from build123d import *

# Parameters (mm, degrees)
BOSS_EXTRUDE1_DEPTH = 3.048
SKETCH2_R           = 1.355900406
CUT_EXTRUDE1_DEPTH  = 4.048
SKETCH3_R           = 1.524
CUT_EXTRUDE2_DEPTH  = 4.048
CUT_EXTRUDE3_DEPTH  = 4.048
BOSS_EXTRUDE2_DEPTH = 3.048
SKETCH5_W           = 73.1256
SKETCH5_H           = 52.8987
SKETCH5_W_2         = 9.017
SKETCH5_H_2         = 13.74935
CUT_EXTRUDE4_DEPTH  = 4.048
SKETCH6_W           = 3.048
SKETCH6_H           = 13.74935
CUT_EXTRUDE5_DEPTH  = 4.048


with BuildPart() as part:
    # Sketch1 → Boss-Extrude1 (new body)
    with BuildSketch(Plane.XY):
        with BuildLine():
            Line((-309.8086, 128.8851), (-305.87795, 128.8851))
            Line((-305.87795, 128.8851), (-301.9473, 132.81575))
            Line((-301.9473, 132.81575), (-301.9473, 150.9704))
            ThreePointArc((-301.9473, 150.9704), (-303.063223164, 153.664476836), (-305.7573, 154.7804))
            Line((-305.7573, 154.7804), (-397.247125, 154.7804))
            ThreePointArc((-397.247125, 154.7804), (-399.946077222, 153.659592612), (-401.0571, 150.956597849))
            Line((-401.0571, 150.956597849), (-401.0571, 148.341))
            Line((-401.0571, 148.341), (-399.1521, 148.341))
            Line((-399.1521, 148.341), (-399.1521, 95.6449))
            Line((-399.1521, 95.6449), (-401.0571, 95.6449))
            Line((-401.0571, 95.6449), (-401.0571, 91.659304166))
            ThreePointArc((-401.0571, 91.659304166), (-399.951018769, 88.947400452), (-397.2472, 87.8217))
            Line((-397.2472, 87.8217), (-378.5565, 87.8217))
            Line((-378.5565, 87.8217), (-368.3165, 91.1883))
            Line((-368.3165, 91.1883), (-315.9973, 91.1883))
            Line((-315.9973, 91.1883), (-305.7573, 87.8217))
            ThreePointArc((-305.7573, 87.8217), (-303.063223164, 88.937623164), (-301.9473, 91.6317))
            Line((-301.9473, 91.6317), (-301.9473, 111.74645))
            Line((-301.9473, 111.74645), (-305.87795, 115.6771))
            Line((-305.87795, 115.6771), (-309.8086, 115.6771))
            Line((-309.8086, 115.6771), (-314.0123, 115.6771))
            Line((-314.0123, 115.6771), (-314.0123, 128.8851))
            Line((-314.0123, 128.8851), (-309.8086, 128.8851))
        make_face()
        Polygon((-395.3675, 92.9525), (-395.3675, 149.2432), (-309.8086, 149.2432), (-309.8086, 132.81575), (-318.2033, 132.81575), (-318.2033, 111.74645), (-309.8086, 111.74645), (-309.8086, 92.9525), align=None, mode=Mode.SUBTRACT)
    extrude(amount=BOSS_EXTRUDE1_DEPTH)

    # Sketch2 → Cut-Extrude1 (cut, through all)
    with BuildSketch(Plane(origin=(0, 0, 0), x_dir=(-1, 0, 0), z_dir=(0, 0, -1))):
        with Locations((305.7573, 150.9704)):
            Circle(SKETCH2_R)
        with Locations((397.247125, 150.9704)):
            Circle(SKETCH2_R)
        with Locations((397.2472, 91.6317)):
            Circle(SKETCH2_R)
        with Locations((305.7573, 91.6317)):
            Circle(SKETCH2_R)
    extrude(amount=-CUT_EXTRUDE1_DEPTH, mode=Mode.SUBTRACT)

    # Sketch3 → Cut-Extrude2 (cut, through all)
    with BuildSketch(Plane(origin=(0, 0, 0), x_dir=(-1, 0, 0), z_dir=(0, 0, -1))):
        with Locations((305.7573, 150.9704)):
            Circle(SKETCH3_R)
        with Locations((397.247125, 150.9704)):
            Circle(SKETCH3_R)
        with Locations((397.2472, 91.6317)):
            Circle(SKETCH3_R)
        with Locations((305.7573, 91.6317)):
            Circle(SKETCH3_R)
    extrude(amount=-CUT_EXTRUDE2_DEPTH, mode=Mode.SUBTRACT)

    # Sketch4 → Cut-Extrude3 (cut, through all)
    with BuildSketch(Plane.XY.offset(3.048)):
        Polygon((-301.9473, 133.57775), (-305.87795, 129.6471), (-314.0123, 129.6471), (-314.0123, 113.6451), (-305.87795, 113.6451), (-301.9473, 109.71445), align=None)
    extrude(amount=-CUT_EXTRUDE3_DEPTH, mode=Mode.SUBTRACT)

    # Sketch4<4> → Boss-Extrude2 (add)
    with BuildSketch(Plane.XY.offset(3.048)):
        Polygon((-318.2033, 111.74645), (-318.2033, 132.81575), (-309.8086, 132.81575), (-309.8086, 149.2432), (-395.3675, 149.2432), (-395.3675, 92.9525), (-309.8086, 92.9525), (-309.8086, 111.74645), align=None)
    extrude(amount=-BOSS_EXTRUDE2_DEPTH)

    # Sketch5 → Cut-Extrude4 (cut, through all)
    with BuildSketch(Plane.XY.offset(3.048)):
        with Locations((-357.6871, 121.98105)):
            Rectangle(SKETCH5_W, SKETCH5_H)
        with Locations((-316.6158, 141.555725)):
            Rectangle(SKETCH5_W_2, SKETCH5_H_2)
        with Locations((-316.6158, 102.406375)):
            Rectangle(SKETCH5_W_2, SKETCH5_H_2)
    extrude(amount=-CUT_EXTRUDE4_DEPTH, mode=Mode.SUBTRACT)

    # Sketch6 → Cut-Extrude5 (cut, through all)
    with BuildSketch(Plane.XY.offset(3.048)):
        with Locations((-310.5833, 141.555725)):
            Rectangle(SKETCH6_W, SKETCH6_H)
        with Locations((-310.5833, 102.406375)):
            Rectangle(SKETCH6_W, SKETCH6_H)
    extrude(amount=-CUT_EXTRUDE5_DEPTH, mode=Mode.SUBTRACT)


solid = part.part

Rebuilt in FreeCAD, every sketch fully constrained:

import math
import FreeCAD as App
import Part
import Sketcher
Q = App.Units.Quantity


def add_polygon(sketch, points):
    """Adds a closed chain of lines whose ends are joined by coincident constraints."""
    first, n = sketch.GeometryCount, len(points)
    for a, b in zip(points, points[1:] + points[:1]):
        sketch.addGeometry(Part.LineSegment(App.Vector(*a, 0), App.Vector(*b, 0)), False)
    for i in range(n):
        sketch.addConstraint(Sketcher.Constraint("Coincident", first + i, 2, first + (i + 1) % n, 1))

doc = App.newDocument("Part")
body = doc.addObject("PartDesign::Body", "Body")

# Sketch on XY plane
sketch1 = body.newObject("Sketcher::SketchObject", "Sketch")
sketch1.AttachmentSupport = (doc.getObject("XY_Plane"), [""])
sketch1.MapMode = "FlatFace"
sketch1.addGeometry(Part.LineSegment(App.Vector(-305.87795, 128.8851, 0), App.Vector(-301.9473, 132.81575, 0)), False)  # 0
sketch1.addGeometry(Part.LineSegment(App.Vector(-301.9473, 132.81575, 0), App.Vector(-301.9473, 150.9704, 0)), False)  # 1
sketch1.addGeometry(Part.ArcOfCircle(Part.Circle(App.Vector(-305.7573, 150.9704, 0), App.Vector(0, 0, 1), 3.81), math.radians(0), math.radians(90)), False)  # 2
sketch1.addGeometry(Part.LineSegment(App.Vector(-305.7573, 154.7804, 0), App.Vector(-397.247125, 154.7804, 0)), False)  # 3
sketch1.addGeometry(Part.ArcOfCircle(Part.Circle(App.Vector(-397.247125, 150.9704, 0), App.Vector(0, 0, 1), 3.81), math.radians(90), math.radians(180.207561)), False)  # 4
sketch1.addGeometry(Part.LineSegment(App.Vector(-401.0571, 150.956598, 0), App.Vector(-401.0571, 148.341, 0)), False)  # 5
sketch1.addGeometry(Part.LineSegment(App.Vector(-401.0571, 148.341, 0), App.Vector(-399.1521, 148.341, 0)), False)  # 6
sketch1.addGeometry(Part.LineSegment(App.Vector(-399.1521, 148.341, 0), App.Vector(-399.1521, 95.6449, 0)), False)  # 7
sketch1.addGeometry(Part.LineSegment(App.Vector(-399.1521, 95.6449, 0), App.Vector(-401.0571, 95.6449, 0)), False)  # 8
sketch1.addGeometry(Part.LineSegment(App.Vector(-401.0571, 95.6449, 0), App.Vector(-401.0571, 91.659304, 0)), False)  # 9
sketch1.addGeometry(Part.ArcOfCircle(Part.Circle(App.Vector(-397.2472, 91.6317, 0), App.Vector(0, 0, 1), 3.81), math.radians(179.584878), math.radians(270)), False)  # 10
sketch1.addGeometry(Part.LineSegment(App.Vector(-397.2472, 87.8217, 0), App.Vector(-378.5565, 87.8217, 0)), False)  # 11
sketch1.addGeometry(Part.LineSegment(App.Vector(-378.5565, 87.8217, 0), App.Vector(-368.3165, 91.1883, 0)), False)  # 12
sketch1.addGeometry(Part.LineSegment(App.Vector(-368.3165, 91.1883, 0), App.Vector(-315.9973, 91.1883, 0)), False)  # 13
sketch1.addGeometry(Part.LineSegment(App.Vector(-315.9973, 91.1883, 0), App.Vector(-305.7573, 87.8217, 0)), False)  # 14
sketch1.addGeometry(Part.ArcOfCircle(Part.Circle(App.Vector(-305.7573, 91.6317, 0), App.Vector(0, 0, 1), 3.81), math.radians(-90), math.radians(0)), False)  # 15
sketch1.addGeometry(Part.LineSegment(App.Vector(-301.9473, 91.6317, 0), App.Vector(-301.9473, 111.74645, 0)), False)  # 16
sketch1.addGeometry(Part.LineSegment(App.Vector(-301.9473, 111.74645, 0), App.Vector(-305.87795, 115.6771, 0)), False)  # 17
sketch1.addGeometry(Part.LineSegment(App.Vector(-305.87795, 115.6771, 0), App.Vector(-314.0123, 115.6771, 0)), False)  # 18
sketch1.addGeometry(Part.LineSegment(App.Vector(-314.0123, 115.6771, 0), App.Vector(-314.0123, 128.8851, 0)), False)  # 19
sketch1.addGeometry(Part.LineSegment(App.Vector(-314.0123, 128.8851, 0), App.Vector(-305.87795, 128.8851, 0)), False)  # 20
add_polygon(sketch1, [(-309.8086, 92.9525), (-395.3675, 92.9525), (-395.3675, 149.2432), (-309.8086, 149.2432), (-309.8086, 132.81575), (-318.2033, 132.81575), (-318.2033, 111.74645), (-309.8086, 111.74645)])  # lines 21-28
sketch1.addConstraint(Sketcher.Constraint("Coincident", 0, 2, 1, 1))
sketch1.addConstraint(Sketcher.Constraint("Tangent", 1, 2, 2, 1))
sketch1.addConstraint(Sketcher.Constraint("Tangent", 2, 2, 3, 1))
sketch1.addConstraint(Sketcher.Constraint("Tangent", 3, 2, 4, 1))
sketch1.addConstraint(Sketcher.Constraint("Coincident", 4, 2, 5, 1))
sketch1.addConstraint(Sketcher.Constraint("Coincident", 5, 2, 6, 1))
sketch1.addConstraint(Sketcher.Constraint("Coincident", 6, 2, 7, 1))
sketch1.addConstraint(Sketcher.Constraint("Coincident", 7, 2, 8, 1))
sketch1.addConstraint(Sketcher.Constraint("Coincident", 8, 2, 9, 1))
sketch1.addConstraint(Sketcher.Constraint("Coincident", 9, 2, 10, 1))
sketch1.addConstraint(Sketcher.Constraint("Tangent", 10, 2, 11, 1))
sketch1.addConstraint(Sketcher.Constraint("Coincident", 11, 2, 12, 1))
sketch1.addConstraint(Sketcher.Constraint("Coincident", 12, 2, 13, 1))
sketch1.addConstraint(Sketcher.Constraint("Coincident", 13, 2, 14, 1))
sketch1.addConstraint(Sketcher.Constraint("Coincident", 14, 2, 15, 1))
sketch1.addConstraint(Sketcher.Constraint("Tangent", 15, 2, 16, 1))
sketch1.addConstraint(Sketcher.Constraint("Coincident", 16, 2, 17, 1))
sketch1.addConstraint(Sketcher.Constraint("Coincident", 17, 2, 18, 1))
sketch1.addConstraint(Sketcher.Constraint("Coincident", 18, 2, 19, 1))
sketch1.addConstraint(Sketcher.Constraint("Coincident", 19, 2, 20, 1))
sketch1.addConstraint(Sketcher.Constraint("Coincident", 20, 2, 0, 1))
sketch1.addConstraint(Sketcher.Constraint("Vertical", 1))
sketch1.addConstraint(Sketcher.Constraint("Horizontal", 3))
sketch1.addConstraint(Sketcher.Constraint("Vertical", 5))
sketch1.addConstraint(Sketcher.Constraint("Horizontal", 6))
sketch1.addConstraint(Sketcher.Constraint("Vertical", 7))
sketch1.addConstraint(Sketcher.Constraint("Horizontal", 8))
sketch1.addConstraint(Sketcher.Constraint("Vertical", 9))
sketch1.addConstraint(Sketcher.Constraint("Horizontal", 11))
sketch1.addConstraint(Sketcher.Constraint("Horizontal", 13))
sketch1.addConstraint(Sketcher.Constraint("Vertical", 16))
sketch1.addConstraint(Sketcher.Constraint("Horizontal", 18))
sketch1.addConstraint(Sketcher.Constraint("Vertical", 19))
sketch1.addConstraint(Sketcher.Constraint("Horizontal", 20))
sketch1.addConstraint(Sketcher.Constraint("Horizontal", 21))
sketch1.addConstraint(Sketcher.Constraint("Vertical", 22))
sketch1.addConstraint(Sketcher.Constraint("Horizontal", 23))
sketch1.addConstraint(Sketcher.Constraint("Vertical", 24))
sketch1.addConstraint(Sketcher.Constraint("Horizontal", 25))
sketch1.addConstraint(Sketcher.Constraint("Vertical", 26))
sketch1.addConstraint(Sketcher.Constraint("Horizontal", 27))
sketch1.addConstraint(Sketcher.Constraint("Vertical", 28))
sketch1.addConstraint(Sketcher.Constraint("Equal", 2, 4))
sketch1.addConstraint(Sketcher.Constraint("Equal", 4, 10))
sketch1.addConstraint(Sketcher.Constraint("Equal", 10, 15))
sketch1.addConstraint(Sketcher.Constraint("Perpendicular", 0, 17))
sketch1.addConstraint(Sketcher.Constraint("Horizontal", 10, 3, 15, 3))
sketch1.addConstraint(Sketcher.Constraint("Horizontal", 0, 2, 24, 2))
sketch1.addConstraint(Sketcher.Constraint("Horizontal", 16, 2, 26, 2))
sketch1.addConstraint(Sketcher.Constraint("Vertical", 2, 3, 15, 3))
sketch1.addConstraint(Sketcher.Constraint("Vertical", 5, 2, 8, 2))
sketch1.addConstraint(Sketcher.Constraint("Vertical", 2, 2, 14, 2))
sketch1.addConstraint(Sketcher.Constraint("Vertical", 17, 2, 20, 2))
sketch1.addConstraint(Sketcher.Constraint("Vertical", 24, 2, 27, 2))
sketch1.addConstraint(Sketcher.Constraint("Equal", 12, 14))
sketch1.addConstraint(Sketcher.Constraint("Equal", 0, 17))
sketch1.addConstraint(Sketcher.Constraint("Radius", 2, Q("0.15 in")))
sketch1.addConstraint(Sketcher.Constraint("DistanceY", 19, 1, 19, 2, Q("0.52 in")))
sketch1.addConstraint(Sketcher.Constraint("DistanceX", 6, 1, 6, 2, Q("0.075 in")))
sketch1.addConstraint(Sketcher.Constraint("DistanceX", 25, 2, 0, 2, Q("0.64 in")))
sketch1.addConstraint(Sketcher.Constraint("DistanceX", 25, 2, 25, 1, Q("0.3305 in")))
sketch1.addConstraint(Sketcher.Constraint("DistanceY", 26, 2, 26, 1, Q("0.8295 in")))
sketch1.addConstraint(Sketcher.Constraint("DistanceY", 10, 3, 7, 2, Q("0.158 in")))
sketch1.addConstraint(Sketcher.Constraint("DistanceX", 7, 2, 12, 2, Q("1.214 in")))
sketch1.addConstraint(Sketcher.Constraint("DistanceX", 18, 2, 16, 2, Q("0.475 in")))
sketch1.addConstraint(Sketcher.Constraint("DistanceY", 10, 3, 21, 2, Q("0.052 in")))
sketch1.addConstraint(Sketcher.Constraint("DistanceX", 7, 2, 21, 2, Q("0.149 in")))
sketch1.addConstraint(Sketcher.Constraint("DistanceY", 22, 2, 4, 3, Q("0.068 in")))
sketch1.addConstraint(Sketcher.Constraint("DistanceX", 11, 1, 11, 2, 18.6907))
sketch1.addConstraint(Sketcher.Constraint("DistanceX", 13, 1, 13, 2, 52.3192))
sketch1.addConstraint(Sketcher.Constraint("DistanceX", 21, 2, 21, 1, 85.5589))
sketch1.addConstraint(Sketcher.Constraint("DistanceY", 7, 2, 7, 1, 52.6961))
sketch1.addConstraint(Sketcher.Constraint("DistanceY", 22, 1, 22, 2, 56.2907))
sketch1.addConstraint(Sketcher.Constraint("DistanceY", 19, 2, 2, 3, Q("0.8695 in")))
sketch1.addConstraint(Sketcher.Constraint("DistanceX", 2, 3, -1, 1, 305.7573))
sketch1.addConstraint(Sketcher.Constraint("DistanceY", -1, 1, 2, 3, 150.9704))
sketch1.addConstraint(Sketcher.Constraint("DistanceY", -1, 1, 12, 2, 91.1883))
sketch1.addConstraint(Sketcher.Constraint("DistanceX", 3, 2, 3, 1, 91.489825))
pad1 = body.newObject("PartDesign::Pad", "Pad")
pad1.Profile = sketch1
pad1.Length = Q("0.12 in")

# Sketch on XY plane
sketch2 = body.newObject("Sketcher::SketchObject", "Sketch001")
sketch2.AttachmentSupport = (doc.getObject("XY_Plane"), [""])
sketch2.MapMode = "FlatFace"
sketch2.addGeometry(Part.Circle(App.Vector(-305.8, 151, 0), App.Vector(0, 0, 1), 1.4), False)
sketch2.addGeometry(Part.Circle(App.Vector(-397.2, 151, 0), App.Vector(0, 0, 1), 1.4), False)
sketch2.addGeometry(Part.Circle(App.Vector(-397.2, 91.6, 0), App.Vector(0, 0, 1), 1.4), False)
sketch2.addGeometry(Part.Circle(App.Vector(-305.8, 91.6, 0), App.Vector(0, 0, 1), 1.4), False)
sketch2.addConstraint(Sketcher.Constraint("Equal", 0, 1))
sketch2.addConstraint(Sketcher.Constraint("Equal", 1, 2))
sketch2.addConstraint(Sketcher.Constraint("Equal", 2, 3))
sketch2.addConstraint(Sketcher.Constraint("Horizontal", 0, 3, 1, 3))
sketch2.addConstraint(Sketcher.Constraint("Horizontal", 2, 3, 3, 3))
sketch2.addConstraint(Sketcher.Constraint("Vertical", 0, 3, 3, 3))
sketch2.addConstraint(Sketcher.Constraint("Diameter", 0, 2.711801))
sketch2.addConstraint(Sketcher.Constraint("DistanceX", 0, 3, -1, 1, 305.7573))
sketch2.addConstraint(Sketcher.Constraint("DistanceY", -1, 1, 0, 3, 150.9704))
sketch2.addConstraint(Sketcher.Constraint("DistanceX", 2, 3, -1, 1, 397.2472))
sketch2.addConstraint(Sketcher.Constraint("DistanceY", -1, 1, 2, 3, 91.6317))
sketch2.addConstraint(Sketcher.Constraint("DistanceX", 1, 3, -1, 1, 397.247125))
pocket1 = body.newObject("PartDesign::Pocket", "Pocket")
pocket1.Profile = sketch2
pocket1.Type = "ThroughAll"
pocket1.Reversed = True

# Sketch on XY plane
sketch3 = body.newObject("Sketcher::SketchObject", "Sketch002")
sketch3.AttachmentSupport = (doc.getObject("XY_Plane"), [""])
sketch3.MapMode = "FlatFace"
sketch3.addGeometry(Part.Circle(App.Vector(-305.8, 151, 0), App.Vector(0, 0, 1), 1.5), False)
sketch3.addGeometry(Part.Circle(App.Vector(-397.2, 151, 0), App.Vector(0, 0, 1), 1.5), False)
sketch3.addGeometry(Part.Circle(App.Vector(-397.2, 91.6, 0), App.Vector(0, 0, 1), 1.5), False)
sketch3.addGeometry(Part.Circle(App.Vector(-305.8, 91.6, 0), App.Vector(0, 0, 1), 1.5), False)
sketch3.addConstraint(Sketcher.Constraint("Equal", 0, 1))
sketch3.addConstraint(Sketcher.Constraint("Equal", 1, 2))
sketch3.addConstraint(Sketcher.Constraint("Equal", 2, 3))
sketch3.addConstraint(Sketcher.Constraint("Horizontal", 0, 3, 1, 3))
sketch3.addConstraint(Sketcher.Constraint("Horizontal", 2, 3, 3, 3))
sketch3.addConstraint(Sketcher.Constraint("Vertical", 0, 3, 3, 3))
sketch3.addConstraint(Sketcher.Constraint("Diameter", 0, Q("0.12 in")))
sketch3.addConstraint(Sketcher.Constraint("DistanceX", 0, 3, -1, 1, 305.7573))
sketch3.addConstraint(Sketcher.Constraint("DistanceY", -1, 1, 0, 3, 150.9704))
sketch3.addConstraint(Sketcher.Constraint("DistanceX", 2, 3, -1, 1, 397.2472))
sketch3.addConstraint(Sketcher.Constraint("DistanceY", -1, 1, 2, 3, 91.6317))
sketch3.addConstraint(Sketcher.Constraint("DistanceX", 1, 3, -1, 1, 397.247125))
pocket2 = body.newObject("PartDesign::Pocket", "Pocket001")
pocket2.Profile = sketch3
pocket2.Type = "ThroughAll"
pocket2.Reversed = True

# Sketch on XY plane
sketch4 = body.newObject("Sketcher::SketchObject", "Sketch003")
sketch4.AttachmentSupport = (doc.getObject("XY_Plane"), [""])
sketch4.MapMode = "FlatFace"
sketch4.AttachmentOffset = App.Placement(App.Vector(0, 0, 0.12 * 25.4), App.Rotation())
add_polygon(sketch4, [(-302, 134), (-306, 130), (-314, 130), (-314, 114), (-306, 114), (-302, 110)])  # lines 0-5
sketch4.addConstraint(Sketcher.Constraint("Horizontal", 1))
sketch4.addConstraint(Sketcher.Constraint("Vertical", 2))
sketch4.addConstraint(Sketcher.Constraint("Horizontal", 3))
sketch4.addConstraint(Sketcher.Constraint("Vertical", 5))
sketch4.addConstraint(Sketcher.Constraint("Perpendicular", 0, 4))
sketch4.addConstraint(Sketcher.Constraint("Vertical", 0, 2, 3, 2))
sketch4.addConstraint(Sketcher.Constraint("Equal", 0, 4))
sketch4.addConstraint(Sketcher.Constraint("DistanceY", 2, 2, 2, 1, Q("0.63 in")))
sketch4.addConstraint(Sketcher.Constraint("DistanceY", 5, 1, 5, 2, Q("0.9395 in")))
sketch4.addConstraint(Sketcher.Constraint("DistanceX", 2, 2, 4, 2, Q("0.475 in")))
sketch4.addConstraint(Sketcher.Constraint("DistanceY", -1, 1, 0, 2, 129.6471))
sketch4.addConstraint(Sketcher.Constraint("DistanceX", 1, 2, -1, 1, 314.0123))
pocket3 = body.newObject("PartDesign::Pocket", "Pocket002")
pocket3.Profile = sketch4
pocket3.Type = "ThroughAll"

# Sketch on XY plane
sketch5 = body.newObject("Sketcher::SketchObject", "Sketch004")
sketch5.AttachmentSupport = (doc.getObject("XY_Plane"), [""])
sketch5.MapMode = "FlatFace"
sketch5.AttachmentOffset = App.Placement(App.Vector(0, 0, 0.12 * 25.4), App.Rotation())
add_polygon(sketch5, [(-318, 112), (-318, 133), (-310, 133), (-310, 149), (-395, 149), (-395, 93), (-310, 93), (-310, 112)])  # lines 0-7
sketch5.addConstraint(Sketcher.Constraint("Vertical", 0))
sketch5.addConstraint(Sketcher.Constraint("Horizontal", 1))
sketch5.addConstraint(Sketcher.Constraint("Vertical", 2))
sketch5.addConstraint(Sketcher.Constraint("Horizontal", 3))
sketch5.addConstraint(Sketcher.Constraint("Vertical", 4))
sketch5.addConstraint(Sketcher.Constraint("Horizontal", 5))
sketch5.addConstraint(Sketcher.Constraint("Vertical", 6))
sketch5.addConstraint(Sketcher.Constraint("Horizontal", 7))
sketch5.addConstraint(Sketcher.Constraint("Vertical", 2, 2, 5, 2))
sketch5.addConstraint(Sketcher.Constraint("DistanceX", 1, 1, 1, 2, Q("0.3305 in")))
sketch5.addConstraint(Sketcher.Constraint("DistanceY", 0, 1, 0, 2, Q("0.8295 in")))
sketch5.addConstraint(Sketcher.Constraint("DistanceX", 3, 2, 3, 1, 85.5589))
sketch5.addConstraint(Sketcher.Constraint("DistanceY", 4, 2, 4, 1, 56.2907))
sketch5.addConstraint(Sketcher.Constraint("DistanceY", 2, 1, 2, 2, 16.42745))
sketch5.addConstraint(Sketcher.Constraint("DistanceX", 0, 2, -1, 1, 318.2033))
sketch5.addConstraint(Sketcher.Constraint("DistanceY", -1, 1, 2, 2, 149.2432))
pad2 = body.newObject("PartDesign::Pad", "Pad001")
pad2.Profile = sketch5
pad2.Length = Q("0.12 in")
pad2.Reversed = True

# Sketch on XY plane
sketch6 = body.newObject("Sketcher::SketchObject", "Sketch005")
sketch6.AttachmentSupport = (doc.getObject("XY_Plane"), [""])
sketch6.MapMode = "FlatFace"
sketch6.AttachmentOffset = App.Placement(App.Vector(0, 0, 0.12 * 25.4), App.Rotation())
add_polygon(sketch6, [(-394, 148), (-394, 96), (-312, 96), (-312, 109), (-321, 109), (-321, 135), (-312, 135), (-312, 148)])  # lines 0-7
sketch6.addConstraint(Sketcher.Constraint("Vertical", 0))
sketch6.addConstraint(Sketcher.Constraint("Horizontal", 1))
sketch6.addConstraint(Sketcher.Constraint("Vertical", 2))
sketch6.addConstraint(Sketcher.Constraint("Horizontal", 3))
sketch6.addConstraint(Sketcher.Constraint("Vertical", 4))
sketch6.addConstraint(Sketcher.Constraint("Horizontal", 5))
sketch6.addConstraint(Sketcher.Constraint("Vertical", 6))
sketch6.addConstraint(Sketcher.Constraint("Horizontal", 7))
sketch6.addConstraint(Sketcher.Constraint("Vertical", 2, 2, 5, 2))
sketch6.addConstraint(Sketcher.Constraint("Equal", 2, 6))
sketch6.addConstraint(Sketcher.Constraint("DistanceY", 4, 1, 4, 2, Q("1 in")))
sketch6.addConstraint(Sketcher.Constraint("DistanceX", 3, 2, 3, 1, Q("0.355 in")))
sketch6.addConstraint(Sketcher.Constraint("DistanceX", 1, 1, 1, 2, 82.1426))
sketch6.addConstraint(Sketcher.Constraint("DistanceY", 0, 2, 0, 1, 52.8987))
sketch6.addConstraint(Sketcher.Constraint("DistanceX", 0, 2, -1, 1, 394.2499))
sketch6.addConstraint(Sketcher.Constraint("DistanceY", -1, 1, 0, 2, 95.5317))
pocket4 = body.newObject("PartDesign::Pocket", "Pocket003")
pocket4.Profile = sketch6
pocket4.Type = "ThroughAll"

# Sketch on XY plane
sketch7 = body.newObject("Sketcher::SketchObject", "Sketch006")
sketch7.AttachmentSupport = (doc.getObject("XY_Plane"), [""])
sketch7.MapMode = "FlatFace"
sketch7.AttachmentOffset = App.Placement(App.Vector(0, 0, 0.12 * 25.4), App.Rotation())
add_polygon(sketch7, [(-312.1, 148.4), (-312.1, 134.7), (-309.1, 134.7), (-309.1, 148.4)])  # lines 0-3
add_polygon(sketch7, [(-312.1, 109.3), (-312.1, 95.5), (-309.1, 95.5), (-309.1, 109.3)])  # lines 4-7
sketch7.addConstraint(Sketcher.Constraint("Vertical", 0))
sketch7.addConstraint(Sketcher.Constraint("Horizontal", 1))
sketch7.addConstraint(Sketcher.Constraint("Vertical", 2))
sketch7.addConstraint(Sketcher.Constraint("Horizontal", 3))
sketch7.addConstraint(Sketcher.Constraint("Vertical", 4))
sketch7.addConstraint(Sketcher.Constraint("Horizontal", 5))
sketch7.addConstraint(Sketcher.Constraint("Vertical", 6))
sketch7.addConstraint(Sketcher.Constraint("Horizontal", 7))
sketch7.addConstraint(Sketcher.Constraint("Vertical", 3, 2, 4, 2))
sketch7.addConstraint(Sketcher.Constraint("Vertical", 2, 2, 5, 2))
sketch7.addConstraint(Sketcher.Constraint("Equal", 2, 4))
sketch7.addConstraint(Sketcher.Constraint("DistanceY", 6, 2, 1, 2, Q("1 in")))
sketch7.addConstraint(Sketcher.Constraint("DistanceX", 1, 1, 1, 2, Q("0.12 in")))
sketch7.addConstraint(Sketcher.Constraint("DistanceY", 0, 2, 0, 1, 13.74935))
sketch7.addConstraint(Sketcher.Constraint("DistanceX", 0, 2, -1, 1, 312.1073))
sketch7.addConstraint(Sketcher.Constraint("DistanceY", -1, 1, 2, 2, 148.4304))
pocket5 = body.newObject("PartDesign::Pocket", "Pocket004")
pocket5.Profile = sketch7
pocket5.Type = "ThroughAll"

doc.recompute()
